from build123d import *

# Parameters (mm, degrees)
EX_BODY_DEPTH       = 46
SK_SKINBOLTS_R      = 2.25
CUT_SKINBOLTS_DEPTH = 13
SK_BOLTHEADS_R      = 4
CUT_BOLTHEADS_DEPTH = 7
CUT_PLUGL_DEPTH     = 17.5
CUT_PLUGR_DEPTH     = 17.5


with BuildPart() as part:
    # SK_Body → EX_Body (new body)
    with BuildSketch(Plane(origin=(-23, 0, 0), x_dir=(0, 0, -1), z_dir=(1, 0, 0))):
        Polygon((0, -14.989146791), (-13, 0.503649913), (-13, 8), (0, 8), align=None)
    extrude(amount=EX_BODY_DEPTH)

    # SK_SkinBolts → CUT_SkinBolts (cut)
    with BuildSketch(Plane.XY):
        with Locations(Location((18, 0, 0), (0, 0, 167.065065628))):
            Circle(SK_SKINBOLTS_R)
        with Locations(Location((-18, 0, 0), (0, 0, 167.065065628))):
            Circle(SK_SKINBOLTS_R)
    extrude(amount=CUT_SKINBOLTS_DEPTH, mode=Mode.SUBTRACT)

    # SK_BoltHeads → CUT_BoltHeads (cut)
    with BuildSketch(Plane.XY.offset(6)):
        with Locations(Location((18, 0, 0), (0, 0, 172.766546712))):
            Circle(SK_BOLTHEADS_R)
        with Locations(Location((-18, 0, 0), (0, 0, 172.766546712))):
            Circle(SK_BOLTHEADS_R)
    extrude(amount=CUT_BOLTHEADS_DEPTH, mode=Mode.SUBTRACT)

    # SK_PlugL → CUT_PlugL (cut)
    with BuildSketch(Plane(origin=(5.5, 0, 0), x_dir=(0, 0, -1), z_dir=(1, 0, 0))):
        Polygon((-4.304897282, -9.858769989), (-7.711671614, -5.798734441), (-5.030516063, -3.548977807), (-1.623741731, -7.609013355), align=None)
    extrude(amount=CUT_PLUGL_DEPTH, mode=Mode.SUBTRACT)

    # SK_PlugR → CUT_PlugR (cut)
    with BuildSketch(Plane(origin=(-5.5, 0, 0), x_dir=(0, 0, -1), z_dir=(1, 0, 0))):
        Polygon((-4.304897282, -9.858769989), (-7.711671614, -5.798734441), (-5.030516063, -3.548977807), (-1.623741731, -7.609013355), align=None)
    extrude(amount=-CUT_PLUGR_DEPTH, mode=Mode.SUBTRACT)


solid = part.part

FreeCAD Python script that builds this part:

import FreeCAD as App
import Part
import Sketcher

V = App.Vector
Q = App.Units.Quantity

doc = App.newDocument("Part")
params = doc.addObject("Spreadsheet::Sheet", "Params")
for row, (alias, value) in enumerate([
    ("sketch1_height", "13 mm"),
    ("pad1_length", "46 mm"),
    ("sketch2_diameter", "4.5 mm"),
    ("pocket1_length", "13 mm"),
    ("sketch3_diameter", "8 mm"),
    ("pocket2_length", "7 mm"),
    ("sketch4_length", "5.3 mm"),
    ("sketch4_length2", "3.5 mm"),
    ("pocket3_length", "17.5 mm"),
    ("sketch5_length", "5.3 mm"),
    ("sketch5_length2", "3.5 mm"),
    ("pocket4_length", "17.5 mm"),
], start=1):
    params.set(f"A{row}", alias)
    params.set(f"B{row}", "=" + value)
    params.setAlias(f"B{row}", alias)

body = doc.addObject("PartDesign::Body", "Body")

# Sketch on YZ plane
sketch1 = body.newObject("Sketcher::SketchObject", "Sketch")
sketch1.AttachmentSupport = (doc.getObject("YZ_Plane"), [""])
sketch1.MapMode = "FlatFace"
sketch1.AttachmentOffset = App.Placement(V(0, 0, -23), App.Rotation())
sketch1.addGeometry(Part.LineSegment(V(1, 13, 0), V(-15, 0, 0)), False)
sketch1.addGeometry(Part.LineSegment(V(-15, 0, 0), V(8, 0, 0)), False)
sketch1.addGeometry(Part.LineSegment(V(8, 0, 0), V(8, 13, 0)), False)
sketch1.addGeometry(Part.LineSegment(V(8, 13, 0), V(1, 13, 0)), False)
sketch1.addConstraint(Sketcher.Constraint("Coincident", 0, 2, 1, 1))
sketch1.addConstraint(Sketcher.Constraint("Coincident", 1, 2, 2, 1))
sketch1.addConstraint(Sketcher.Constraint("Coincident", 2, 2, 3, 1))
sketch1.addConstraint(Sketcher.Constraint("Coincident", 3, 2, 0, 1))
sketch1.addConstraint(Sketcher.Constraint("Horizontal", 1))
sketch1.addConstraint(Sketcher.Constraint("Vertical", 2))
sketch1.addConstraint(Sketcher.Constraint("Horizontal", 3))
sketch1.addConstraint(Sketcher.Constraint("PointOnObject", 0, 2, -1))
sketch1.addConstraint(Sketcher.Constraint("DistanceY", 2, 1, 2, 2, Q("13 mm")))
sketch1.addConstraint(Sketcher.Constraint("Angle", 0, Q("-140 deg")))
sketch1.addConstraint(Sketcher.Constraint("DistanceX", -1, 1, 1, 2, Q("8 mm")))
sketch1.addConstraint(Sketcher.Constraint("DistanceX", 3, 2, 3, 1, Q("7.49635 mm")))
sketch1.setExpression("Constraints[8]", "Params.sketch1_height")
pad1 = body.newObject("PartDesign::Pad", "Pad")
pad1.Profile = sketch1
pad1.setExpression("Length", "Params.pad1_length")

# Sketch on XY plane
sketch2 = body.newObject("Sketcher::SketchObject", "Sketch001")
sketch2.AttachmentSupport = (doc.getObject("XY_Plane"), [""])
sketch2.MapMode = "FlatFace"
sketch2.addGeometry(Part.Circle(V(18, 0, 0), V(0, 0, 1), 2.2), False)
sketch2.addGeometry(Part.Circle(V(-18, 0, 0), V(0, 0, 1), 2.2), False)
sketch2.addConstraint(Sketcher.Constraint("Equal", 0, 1))
sketch2.addConstraint(Sketcher.Constraint("Symmetric", 0, 3, 1, 3, -1, 1))
sketch2.addConstraint(Sketcher.Constraint("PointOnObject", 0, 3, -1))
sketch2.addConstraint(Sketcher.Constraint("Diameter", 0, Q("4.5 mm")))
sketch2.addConstraint(Sketcher.Constraint("DistanceX", -1, 1, 0, 3, Q("18 mm")))
sketch2.setExpression("Constraints[3]", "Params.sketch2_diameter")
pocket1 = body.newObject("PartDesign::Pocket", "Pocket")
pocket1.Profile = sketch2
pocket1.setExpression("Length", "Params.pocket1_length")
pocket1.Reversed = True

# Sketch on XY plane
sketch3 = body.newObject("Sketcher::SketchObject", "Sketch002")
sketch3.AttachmentSupport = (doc.getObject("XY_Plane"), [""])
sketch3.MapMode = "FlatFace"
sketch3.AttachmentOffset = App.Placement(V(0, 0, 6), App.Rotation())
sketch3.addGeometry(Part.Circle(V(18, 0, 0), V(0, 0, 1), 4), False)
sketch3.addGeometry(Part.Circle(V(-18, 0, 0), V(0, 0, 1), 4), False)
sketch3.addConstraint(Sketcher.Constraint("Equal", 0, 1))
sketch3.addConstraint(Sketcher.Constraint("Symmetric", 0, 3, 1, 3, -1, 1))
sketch3.addConstraint(Sketcher.Constraint("PointOnObject", 0, 3, -1))
sketch3.addConstraint(Sketcher.Constraint("Diameter", 0, Q("8 mm")))
sketch3.addConstraint(Sketcher.Constraint("DistanceX", -1, 1, 0, 3, Q("18 mm")))
sketch3.setExpression("Constraints[3]", "Params.sketch3_diameter")
pocket2 = body.newObject("PartDesign::Pocket", "Pocket001")
pocket2.Profile = sketch3
pocket2.setExpression("Length", "Params.pocket2_length")
pocket2.Reversed = True

# Sketch on YZ plane
sketch4 = body.newObject("Sketcher::SketchObject", "Sketch003")
sketch4.AttachmentSupport = (doc.getObject("YZ_Plane"), [""])
sketch4.MapMode = "FlatFace"
sketch4.AttachmentOffset = App.Placement(V(0, 0, 5.5), App.Rotation())
sketch4.addGeometry(Part.LineSegment(V(-5.8, 7.7, 0), V(-9.9, 4.3, 0)), False)
sketch4.addGeometry(Part.LineSegment(V(-9.9, 4.3, 0), V(-7.6, 1.6, 0)), False)
sketch4.addGeometry(Part.LineSegment(V(-7.6, 1.6, 0), V(-3.5, 5, 0)), False)
sketch4.addGeometry(Part.LineSegment(V(-3.5, 5, 0), V(-5.8, 7.7, 0)), False)
sketch4.addConstraint(Sketcher.Constraint("Coincident", 0, 2, 1, 1))
sketch4.addConstraint(Sketcher.Constraint("Coincident", 1, 2, 2, 1))
sketch4.addConstraint(Sketcher.Constraint("Coincident", 2, 2, 3, 1))
sketch4.addConstraint(Sketcher.Constraint("Coincident", 3, 2, 0, 1))
sketch4.addConstraint(Sketcher.Constraint("Perpendicular", 0, 1))
sketch4.addConstraint(Sketcher.Constraint("Perpendicular", 1, 2))
sketch4.addConstraint(Sketcher.Constraint("Perpendicular", 2, 3))
sketch4.addConstraint(Sketcher.Constraint("Angle", 0, Q("-140 deg")))
sketch4.addConstraint(Sketcher.Constraint("Distance", 0, Q("5.3 mm")))
sketch4.addConstraint(Sketcher.Constraint("Distance", 1, Q("3.5 mm")))
sketch4.addConstraint(Sketcher.Constraint("DistanceX", 0, 2, -1, 1, Q("9.85877 mm")))
sketch4.addConstraint(Sketcher.Constraint("DistanceY", -1, 1, 1, 2, Q("1.623742 mm")))
sketch4.setExpression("Constraints[8]", "Params.sketch4_length")
sketch4.setExpression("Constraints[9]", "Params.sketch4_length2")
pocket3 = body.newObject("PartDesign::Pocket", "Pocket002")
pocket3.Profile = sketch4
pocket3.setExpression("Length", "Params.pocket3_length")
pocket3.Reversed = True

# Sketch on YZ plane
sketch5 = body.newObject("Sketcher::SketchObject", "Sketch004")
sketch5.AttachmentSupport = (doc.getObject("YZ_Plane"), [""])
sketch5.MapMode = "FlatFace"
sketch5.AttachmentOffset = App.Placement(V(0, 0, -5.5), App.Rotation())
sketch5.addGeometry(Part.LineSegment(V(-5.8, 7.7, 0), V(-9.9, 4.3, 0)), False)
sketch5.addGeometry(Part.LineSegment(V(-9.9, 4.3, 0), V(-7.6, 1.6, 0)), False)
sketch5.addGeometry(Part.LineSegment(V(-7.6, 1.6, 0), V(-3.5, 5, 0)), False)
sketch5.addGeometry(Part.LineSegment(V(-3.5, 5, 0), V(-5.8, 7.7, 0)), False)
sketch5.addConstraint(Sketcher.Constraint("Coincident", 0, 2, 1, 1))
sketch5.addConstraint(Sketcher.Constraint("Coincident", 1, 2, 2, 1))
sketch5.addConstraint(Sketcher.Constraint("Coincident", 2, 2, 3, 1))
sketch5.addConstraint(Sketcher.Constraint("Coincident", 3, 2, 0, 1))
sketch5.addConstraint(Sketcher.Constraint("Perpendicular", 0, 1))
sketch5.addConstraint(Sketcher.Constraint("Perpendicular", 1, 2))
sketch5.addConstraint(Sketcher.Constraint("Perpendicular", 2, 3))
sketch5.addConstraint(Sketcher.Constraint("Angle", 0, Q("-140 deg")))
sketch5.addConstraint(Sketcher.Constraint("Distance", 0, Q("5.3 mm")))
sketch5.addConstraint(Sketcher.Constraint("Distance", 1, Q("3.5 mm")))
sketch5.addConstraint(Sketcher.Constraint("DistanceX", 0, 2, -1, 1, Q("9.85877 mm")))
sketch5.addConstraint(Sketcher.Constraint("DistanceY", -1, 1, 1, 2, Q("1.623742 mm")))
sketch5.setExpression("Constraints[8]", "Params.sketch5_length")
sketch5.setExpression("Constraints[9]", "Params.sketch5_length2")
pocket4 = body.newObject("PartDesign::Pocket", "Pocket003")
pocket4.Profile = sketch5
pocket4.setExpression("Length", "Params.pocket4_length")

doc.recompute()
